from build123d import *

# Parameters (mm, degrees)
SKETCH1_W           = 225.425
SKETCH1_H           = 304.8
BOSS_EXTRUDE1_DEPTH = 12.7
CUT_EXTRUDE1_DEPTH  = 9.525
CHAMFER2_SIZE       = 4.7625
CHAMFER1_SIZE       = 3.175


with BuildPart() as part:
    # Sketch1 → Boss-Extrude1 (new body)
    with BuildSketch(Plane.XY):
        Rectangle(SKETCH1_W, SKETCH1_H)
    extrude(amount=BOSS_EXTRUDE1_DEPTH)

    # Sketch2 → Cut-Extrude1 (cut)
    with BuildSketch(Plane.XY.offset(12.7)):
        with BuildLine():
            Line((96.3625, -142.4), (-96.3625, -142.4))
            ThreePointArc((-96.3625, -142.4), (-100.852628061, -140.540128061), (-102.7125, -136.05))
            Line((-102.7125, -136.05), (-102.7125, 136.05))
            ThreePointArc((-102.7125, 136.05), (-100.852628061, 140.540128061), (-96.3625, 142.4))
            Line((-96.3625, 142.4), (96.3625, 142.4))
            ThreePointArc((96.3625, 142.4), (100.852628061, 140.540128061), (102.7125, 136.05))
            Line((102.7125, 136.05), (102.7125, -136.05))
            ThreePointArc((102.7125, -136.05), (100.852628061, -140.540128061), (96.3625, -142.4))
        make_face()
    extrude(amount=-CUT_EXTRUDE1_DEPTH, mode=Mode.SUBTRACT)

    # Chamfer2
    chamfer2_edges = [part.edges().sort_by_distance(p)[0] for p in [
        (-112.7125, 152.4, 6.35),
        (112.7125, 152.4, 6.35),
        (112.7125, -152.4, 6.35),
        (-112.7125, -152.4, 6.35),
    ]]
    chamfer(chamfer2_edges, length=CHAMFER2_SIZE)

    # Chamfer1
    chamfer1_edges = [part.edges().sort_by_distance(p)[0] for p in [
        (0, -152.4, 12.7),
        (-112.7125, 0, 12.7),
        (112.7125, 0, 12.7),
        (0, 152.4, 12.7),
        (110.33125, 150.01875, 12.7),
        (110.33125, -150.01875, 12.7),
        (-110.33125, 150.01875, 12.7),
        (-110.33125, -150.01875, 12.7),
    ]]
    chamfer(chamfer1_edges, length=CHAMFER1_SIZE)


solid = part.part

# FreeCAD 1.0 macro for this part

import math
import FreeCAD as App
import Part
import Sketcher
from FreeCAD import Vector
Q = App.Units.Quantity


def edges_at(feature, points):
    """Names of the edges that pass closest to the given points."""
    edges = feature.Shape.Edges
    near = lambda p: min(range(len(edges)), key=lambda i: edges[i].distToShape(Part.Vertex(*p))[0])
    return sorted({f"Edge{near(p) + 1}" for p in points})


def add_polygon(sketch, points):
    """Adds a closed chain of lines whose ends are joined by coincident constraints."""
    first, n = sketch.GeometryCount, len(points)
    for a, b in zip(points, points[1:] + points[:1]):
        sketch.addGeometry(Part.LineSegment(App.Vector(*a, 0), App.Vector(*b, 0)), False)
    for i in range(n):
        sketch.addConstraint(Sketcher.Constraint("Coincident", first + i, 2, first + (i + 1) % n, 1))

doc = App.newDocument("Part")
params = doc.addObject("Spreadsheet::Sheet", "Params")
for row, (alias, value) in enumerate([
    ("sketch1_height", "12 in"),
    ("sketch1_width", "8.875 in"),
    ("pad1_length", "0.5 in"),
    ("sketch2_radius", "0.25 in"),
    ("pocket1_length", "0.375 in"),
    ("chamfer_size", "0.1875 in"),
    ("chamfer2_size", "0.125 in"),
], start=1):
    params.set(f"A{row}", alias)
    params.set(f"B{row}", "=" + value)
    params.setAlias(f"B{row}", alias)

body = doc.addObject("PartDesign::Body", "Body")

# Sketch on XY plane
sketch1 = body.newObject("Sketcher::SketchObject", "Sketch")
sketch1.AttachmentSupport = (doc.getObject("XY_Plane"), [""])
sketch1.MapMode = "FlatFace"
add_polygon(sketch1, [(-113, 152), (-113, -152), (113, -152), (113, 152)])  # lines 0-3
sketch1.addConstraint([
    Sketcher.Constraint("Vertical", 0),
    Sketcher.Constraint("Horizontal", 1),
    Sketcher.Constraint("Vertical", 2),
    Sketcher.Constraint("Horizontal", 3),
    Sketcher.Constraint("Symmetric", 0, 2, 2, 2, -1, 1),
    Sketcher.Constraint("DistanceY", 0, 2, 0, 1, Q("12 in")),
    Sketcher.Constraint("DistanceX", 1, 1, 1, 2, Q("8.875 in")),
])
sketch1.setExpression("Constraints[9]", "Params.sketch1_height")
sketch1.setExpression("Constraints[10]", "Params.sketch1_width")
pad1 = body.newObject("PartDesign::Pad", "Pad")
pad1.Profile = sketch1
pad1.setExpression("Length", "Params.pad1_length")

# Sketch on XY plane
sketch2 = body.newObject("Sketcher::SketchObject", "Sketch001")
sketch2.AttachmentSupport = (doc.getObject("XY_Plane"), [""])
sketch2.MapMode = "FlatFace"
sketch2.AttachmentOffset = App.Placement(Vector(0, 0, 0.5 * 25.4), App.Rotation())
sketch2.addGeometry([
    Part.LineSegment(Vector(-96, -142, 0), Vector(96, -142, 0)),  # 0
    Part.ArcOfCircle(Part.Circle(Vector(96, -136, 0), Vector(0, 0, 1), 6), math.radians(-90), math.radians(0)),  # 1
    Part.LineSegment(Vector(103, -136, 0), Vector(103, 136, 0)),  # 2
    Part.ArcOfCircle(Part.Circle(Vector(96, 136, 0), Vector(0, 0, 1), 6), math.radians(0), math.radians(90)),  # 3
    Part.LineSegment(Vector(96, 142, 0), Vector(-96, 142, 0)),  # 4
    Part.ArcOfCircle(Part.Circle(Vector(-96, 136, 0), Vector(0, 0, 1), 6), math.radians(90), math.radians(180)),  # 5
    Part.LineSegment(Vector(-103, 136, 0), Vector(-103, -136, 0)),  # 6
    Part.ArcOfCircle(Part.Circle(Vector(-96, -136, 0), Vector(0, 0, 1), 6), math.radians(180), math.radians(270)),  # 7
], False)
sketch2.addConstraint([
    Sketcher.Constraint("Tangent", 0, 2, 1, 1),
    Sketcher.Constraint("Tangent", 1, 2, 2, 1),
    Sketcher.Constraint("Tangent", 2, 2, 3, 1),
    Sketcher.Constraint("Tangent", 3, 2, 4, 1),
    Sketcher.Constraint("Tangent", 4, 2, 5, 1),
    Sketcher.Constraint("Tangent", 5, 2, 6, 1),
    Sketcher.Constraint("Tangent", 6, 2, 7, 1),
    Sketcher.Constraint("Tangent", 7, 2, 0, 1),
    Sketcher.Constraint("Horizontal", 0),
    Sketcher.Constraint("Vertical", 2),
    Sketcher.Constraint("Horizontal", 4),
    Sketcher.Constraint("Vertical", 6),
    Sketcher.Constraint("Equal", 1, 3),
    Sketcher.Constraint("Equal", 3, 5),
    Sketcher.Constraint("Equal", 5, 7),
    Sketcher.Constraint("Symmetric", 1, 3, 5, 3, -1, 1),
    Sketcher.Constraint("Radius", 1, Q("0.25 in")),
    Sketcher.Constraint("DistanceX", 0, 1, 0, 2, 192.725),
    Sketcher.Constraint("DistanceY", 2, 1, 2, 2, 272.1),
])
sketch2.setExpression("Constraints[16]", "Params.sketch2_radius")
pocket1 = body.newObject("PartDesign::Pocket", "Pocket")
pocket1.Profile = sketch2
pocket1.setExpression("Length", "Params.pocket1_length")
doc.recompute()

chamfer = body.newObject("PartDesign::Chamfer", "Chamfer")
chamfer.Base = (pocket1, edges_at(pocket1, [
    (-112.713, 152.4, 6.35),
    (112.713, 152.4, 6.35),
    (112.713, -152.4, 6.35),
    (-112.713, -152.4, 6.35),
]))
chamfer.setExpression("Size", "Params.chamfer_size")
doc.recompute()

chamfer2 = body.newObject("PartDesign::Chamfer", "Chamfer001")
chamfer2.Base = (chamfer, edges_at(chamfer, [
    (0, -152.4, 12.7),
    (-112.713, 0, 12.7),
    (112.713, 0, 12.7),
    (0, 152.4, 12.7),
    (110.331, 150.019, 12.7),
    (110.331, -150.019, 12.7),
    (-110.331, 150.019, 12.7),
    (-110.331, -150.019, 12.7),
]))
chamfer2.setExpression("Size", "Params.chamfer2_size")

doc.recompute()
